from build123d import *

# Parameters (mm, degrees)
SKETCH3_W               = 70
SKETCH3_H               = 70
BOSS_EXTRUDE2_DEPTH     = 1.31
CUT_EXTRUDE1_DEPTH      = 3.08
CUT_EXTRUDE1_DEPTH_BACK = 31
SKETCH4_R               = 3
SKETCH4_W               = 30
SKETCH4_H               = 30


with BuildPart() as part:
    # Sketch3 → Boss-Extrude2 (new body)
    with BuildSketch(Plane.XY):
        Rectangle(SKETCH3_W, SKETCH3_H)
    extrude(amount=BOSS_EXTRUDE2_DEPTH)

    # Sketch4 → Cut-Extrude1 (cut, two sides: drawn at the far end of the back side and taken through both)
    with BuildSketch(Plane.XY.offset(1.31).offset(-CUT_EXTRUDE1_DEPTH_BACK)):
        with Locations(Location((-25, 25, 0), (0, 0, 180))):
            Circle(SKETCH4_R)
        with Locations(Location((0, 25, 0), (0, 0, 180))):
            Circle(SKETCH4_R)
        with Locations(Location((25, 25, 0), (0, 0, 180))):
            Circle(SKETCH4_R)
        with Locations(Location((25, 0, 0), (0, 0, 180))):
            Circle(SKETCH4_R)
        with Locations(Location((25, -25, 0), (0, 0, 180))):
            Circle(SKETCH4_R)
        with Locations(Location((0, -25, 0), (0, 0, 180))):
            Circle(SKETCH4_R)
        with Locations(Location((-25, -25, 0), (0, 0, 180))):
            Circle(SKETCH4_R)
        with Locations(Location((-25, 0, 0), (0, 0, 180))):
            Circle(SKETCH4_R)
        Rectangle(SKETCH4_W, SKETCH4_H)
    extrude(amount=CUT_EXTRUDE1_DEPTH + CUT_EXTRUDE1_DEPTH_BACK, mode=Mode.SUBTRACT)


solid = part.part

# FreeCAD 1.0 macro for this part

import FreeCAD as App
import Part
import Sketcher

V = App.Vector


def add_polygon(sketch, points):
    """Adds a closed chain of lines whose ends are joined by coincident constraints."""
    first, n = sketch.GeometryCount, len(points)
    for a, b in zip(points, points[1:] + points[:1]):
        sketch.addGeometry(Part.LineSegment(App.Vector(*a, 0), App.Vector(*b, 0)), False)
    for i in range(n):
        sketch.addConstraint(Sketcher.Constraint("Coincident", first + i, 2, first + (i + 1) % n, 1))

doc = App.newDocument("Part")
body = doc.addObject("PartDesign::Body", "Body")

sketch1 = doc.addObject("Sketcher::SketchObject", "Sketch")
body.addObject(sketch1)
sketch1.AttachmentSupport = (doc.XY_Plane, [""])
sketch1.MapMode = "FlatFace"
add_polygon(sketch1, [(-35, 35), (-35, -35), (35, -35), (35, 35)])
sketch1.addConstraint([
    Sketcher.Constraint("Vertical", 0),
    Sketcher.Constraint("Horizontal", 1),
    Sketcher.Constraint("Vertical", 2),
    Sketcher.Constraint("Horizontal", 3),
    Sketcher.Constraint("Symmetric", 0, 2, 2, 2, -1, 1),
    Sketcher.Constraint("Equal", 3, 0),
    Sketcher.Constraint("DistanceX", 1, 1, 1, 2, 70.0),
])
pad1 = doc.addObject("PartDesign::Pad", "Pad")
body.addObject(pad1)
pad1.Profile = sketch1
pad1.Length = 1.31

sketch2 = doc.addObject("Sketcher::SketchObject", "Sketch001")
body.addObject(sketch2)
sketch2.AttachmentSupport = (doc.XY_Plane, [""])
sketch2.MapMode = "FlatFace"
sketch2.AttachmentOffset = App.Placement(V(0, 0, 1.31), App.Rotation())
sketch2.addGeometry(Part.Circle(V(-25, 25, 0), V(0, 0, 1), 3), False)
sketch2.addGeometry(Part.Circle(V(0, 25, 0), V(0, 0, 1), 3), False)
sketch2.addGeometry(Part.Circle(V(25, 25, 0), V(0, 0, 1), 3), False)
sketch2.addGeometry(Part.Circle(V(25, 0, 0), V(0, 0, 1), 3), False)
sketch2.addGeometry(Part.Circle(V(25, -25, 0), V(0, 0, 1), 3), False)
sketch2.addGeometry(Part.Circle(V(0, -25, 0), V(0, 0, 1), 3), False)
sketch2.addGeometry(Part.Circle(V(-25, -25, 0), V(0, 0, 1), 3), False)
sketch2.addGeometry(Part.Circle(V(-25, 0, 0), V(0, 0, 1), 3), False)
add_polygon(sketch2, [(-15, 15), (-15, -15), (15, -15), (15, 15)])
sketch2.addConstraint([
    Sketcher.Constraint("Vertical", 8),
    Sketcher.Constraint("Horizontal", 9),
    Sketcher.Constraint("Vertical", 10),
    Sketcher.Constraint("Horizontal", 11),
    Sketcher.Constraint("Equal", 0, 1),
    Sketcher.Constraint("Equal", 1, 2),
    Sketcher.Constraint("Equal", 2, 3),
    Sketcher.Constraint("Equal", 3, 4),
    Sketcher.Constraint("Equal", 4, 5),
    Sketcher.Constraint("Equal", 5, 6),
    Sketcher.Constraint("Equal", 6, 7),
    Sketcher.Constraint("Symmetric", 0, 3, 4, 3, -1, 1),
    Sketcher.Constraint("Symmetric", 1, 3, 5, 3, -1, 1),
    Sketcher.Constraint("Symmetric", 2, 3, 6, 3, -1, 1),
    Sketcher.Constraint("Symmetric", 3, 3, 7, 3, -1, 1),
    Sketcher.Constraint("Symmetric", 8, 2, 10, 2, -1, 1),
    Sketcher.Constraint("Symmetric", 0, 3, 2, 3, -2),
    Sketcher.Constraint("PointOnObject", 1, 3, -2),
    Sketcher.Constraint("PointOnObject", 3, 3, -1),
    Sketcher.Constraint("Horizontal", 0, 3, 1, 3),
    Sketcher.Constraint("Vertical", 2, 3, 3, 3),
    Sketcher.Constraint("Equal", 11, 8),
    Sketcher.Constraint("Diameter", 0, 6.0),
    Sketcher.Constraint("DistanceX", 9, 1, 9, 2, 30.0),
    Sketcher.Constraint("DistanceX", 0, 3, -1, 1, 25.0),
    Sketcher.Constraint("DistanceY", -1, 1, 0, 3, 25.0),
])
pocket1 = doc.addObject("PartDesign::Pocket", "Pocket")
body.addObject(pocket1)
pocket1.Profile = sketch2
pocket1.Type = "ThroughAll"
pocket1.Midplane = True

doc.recompute()
